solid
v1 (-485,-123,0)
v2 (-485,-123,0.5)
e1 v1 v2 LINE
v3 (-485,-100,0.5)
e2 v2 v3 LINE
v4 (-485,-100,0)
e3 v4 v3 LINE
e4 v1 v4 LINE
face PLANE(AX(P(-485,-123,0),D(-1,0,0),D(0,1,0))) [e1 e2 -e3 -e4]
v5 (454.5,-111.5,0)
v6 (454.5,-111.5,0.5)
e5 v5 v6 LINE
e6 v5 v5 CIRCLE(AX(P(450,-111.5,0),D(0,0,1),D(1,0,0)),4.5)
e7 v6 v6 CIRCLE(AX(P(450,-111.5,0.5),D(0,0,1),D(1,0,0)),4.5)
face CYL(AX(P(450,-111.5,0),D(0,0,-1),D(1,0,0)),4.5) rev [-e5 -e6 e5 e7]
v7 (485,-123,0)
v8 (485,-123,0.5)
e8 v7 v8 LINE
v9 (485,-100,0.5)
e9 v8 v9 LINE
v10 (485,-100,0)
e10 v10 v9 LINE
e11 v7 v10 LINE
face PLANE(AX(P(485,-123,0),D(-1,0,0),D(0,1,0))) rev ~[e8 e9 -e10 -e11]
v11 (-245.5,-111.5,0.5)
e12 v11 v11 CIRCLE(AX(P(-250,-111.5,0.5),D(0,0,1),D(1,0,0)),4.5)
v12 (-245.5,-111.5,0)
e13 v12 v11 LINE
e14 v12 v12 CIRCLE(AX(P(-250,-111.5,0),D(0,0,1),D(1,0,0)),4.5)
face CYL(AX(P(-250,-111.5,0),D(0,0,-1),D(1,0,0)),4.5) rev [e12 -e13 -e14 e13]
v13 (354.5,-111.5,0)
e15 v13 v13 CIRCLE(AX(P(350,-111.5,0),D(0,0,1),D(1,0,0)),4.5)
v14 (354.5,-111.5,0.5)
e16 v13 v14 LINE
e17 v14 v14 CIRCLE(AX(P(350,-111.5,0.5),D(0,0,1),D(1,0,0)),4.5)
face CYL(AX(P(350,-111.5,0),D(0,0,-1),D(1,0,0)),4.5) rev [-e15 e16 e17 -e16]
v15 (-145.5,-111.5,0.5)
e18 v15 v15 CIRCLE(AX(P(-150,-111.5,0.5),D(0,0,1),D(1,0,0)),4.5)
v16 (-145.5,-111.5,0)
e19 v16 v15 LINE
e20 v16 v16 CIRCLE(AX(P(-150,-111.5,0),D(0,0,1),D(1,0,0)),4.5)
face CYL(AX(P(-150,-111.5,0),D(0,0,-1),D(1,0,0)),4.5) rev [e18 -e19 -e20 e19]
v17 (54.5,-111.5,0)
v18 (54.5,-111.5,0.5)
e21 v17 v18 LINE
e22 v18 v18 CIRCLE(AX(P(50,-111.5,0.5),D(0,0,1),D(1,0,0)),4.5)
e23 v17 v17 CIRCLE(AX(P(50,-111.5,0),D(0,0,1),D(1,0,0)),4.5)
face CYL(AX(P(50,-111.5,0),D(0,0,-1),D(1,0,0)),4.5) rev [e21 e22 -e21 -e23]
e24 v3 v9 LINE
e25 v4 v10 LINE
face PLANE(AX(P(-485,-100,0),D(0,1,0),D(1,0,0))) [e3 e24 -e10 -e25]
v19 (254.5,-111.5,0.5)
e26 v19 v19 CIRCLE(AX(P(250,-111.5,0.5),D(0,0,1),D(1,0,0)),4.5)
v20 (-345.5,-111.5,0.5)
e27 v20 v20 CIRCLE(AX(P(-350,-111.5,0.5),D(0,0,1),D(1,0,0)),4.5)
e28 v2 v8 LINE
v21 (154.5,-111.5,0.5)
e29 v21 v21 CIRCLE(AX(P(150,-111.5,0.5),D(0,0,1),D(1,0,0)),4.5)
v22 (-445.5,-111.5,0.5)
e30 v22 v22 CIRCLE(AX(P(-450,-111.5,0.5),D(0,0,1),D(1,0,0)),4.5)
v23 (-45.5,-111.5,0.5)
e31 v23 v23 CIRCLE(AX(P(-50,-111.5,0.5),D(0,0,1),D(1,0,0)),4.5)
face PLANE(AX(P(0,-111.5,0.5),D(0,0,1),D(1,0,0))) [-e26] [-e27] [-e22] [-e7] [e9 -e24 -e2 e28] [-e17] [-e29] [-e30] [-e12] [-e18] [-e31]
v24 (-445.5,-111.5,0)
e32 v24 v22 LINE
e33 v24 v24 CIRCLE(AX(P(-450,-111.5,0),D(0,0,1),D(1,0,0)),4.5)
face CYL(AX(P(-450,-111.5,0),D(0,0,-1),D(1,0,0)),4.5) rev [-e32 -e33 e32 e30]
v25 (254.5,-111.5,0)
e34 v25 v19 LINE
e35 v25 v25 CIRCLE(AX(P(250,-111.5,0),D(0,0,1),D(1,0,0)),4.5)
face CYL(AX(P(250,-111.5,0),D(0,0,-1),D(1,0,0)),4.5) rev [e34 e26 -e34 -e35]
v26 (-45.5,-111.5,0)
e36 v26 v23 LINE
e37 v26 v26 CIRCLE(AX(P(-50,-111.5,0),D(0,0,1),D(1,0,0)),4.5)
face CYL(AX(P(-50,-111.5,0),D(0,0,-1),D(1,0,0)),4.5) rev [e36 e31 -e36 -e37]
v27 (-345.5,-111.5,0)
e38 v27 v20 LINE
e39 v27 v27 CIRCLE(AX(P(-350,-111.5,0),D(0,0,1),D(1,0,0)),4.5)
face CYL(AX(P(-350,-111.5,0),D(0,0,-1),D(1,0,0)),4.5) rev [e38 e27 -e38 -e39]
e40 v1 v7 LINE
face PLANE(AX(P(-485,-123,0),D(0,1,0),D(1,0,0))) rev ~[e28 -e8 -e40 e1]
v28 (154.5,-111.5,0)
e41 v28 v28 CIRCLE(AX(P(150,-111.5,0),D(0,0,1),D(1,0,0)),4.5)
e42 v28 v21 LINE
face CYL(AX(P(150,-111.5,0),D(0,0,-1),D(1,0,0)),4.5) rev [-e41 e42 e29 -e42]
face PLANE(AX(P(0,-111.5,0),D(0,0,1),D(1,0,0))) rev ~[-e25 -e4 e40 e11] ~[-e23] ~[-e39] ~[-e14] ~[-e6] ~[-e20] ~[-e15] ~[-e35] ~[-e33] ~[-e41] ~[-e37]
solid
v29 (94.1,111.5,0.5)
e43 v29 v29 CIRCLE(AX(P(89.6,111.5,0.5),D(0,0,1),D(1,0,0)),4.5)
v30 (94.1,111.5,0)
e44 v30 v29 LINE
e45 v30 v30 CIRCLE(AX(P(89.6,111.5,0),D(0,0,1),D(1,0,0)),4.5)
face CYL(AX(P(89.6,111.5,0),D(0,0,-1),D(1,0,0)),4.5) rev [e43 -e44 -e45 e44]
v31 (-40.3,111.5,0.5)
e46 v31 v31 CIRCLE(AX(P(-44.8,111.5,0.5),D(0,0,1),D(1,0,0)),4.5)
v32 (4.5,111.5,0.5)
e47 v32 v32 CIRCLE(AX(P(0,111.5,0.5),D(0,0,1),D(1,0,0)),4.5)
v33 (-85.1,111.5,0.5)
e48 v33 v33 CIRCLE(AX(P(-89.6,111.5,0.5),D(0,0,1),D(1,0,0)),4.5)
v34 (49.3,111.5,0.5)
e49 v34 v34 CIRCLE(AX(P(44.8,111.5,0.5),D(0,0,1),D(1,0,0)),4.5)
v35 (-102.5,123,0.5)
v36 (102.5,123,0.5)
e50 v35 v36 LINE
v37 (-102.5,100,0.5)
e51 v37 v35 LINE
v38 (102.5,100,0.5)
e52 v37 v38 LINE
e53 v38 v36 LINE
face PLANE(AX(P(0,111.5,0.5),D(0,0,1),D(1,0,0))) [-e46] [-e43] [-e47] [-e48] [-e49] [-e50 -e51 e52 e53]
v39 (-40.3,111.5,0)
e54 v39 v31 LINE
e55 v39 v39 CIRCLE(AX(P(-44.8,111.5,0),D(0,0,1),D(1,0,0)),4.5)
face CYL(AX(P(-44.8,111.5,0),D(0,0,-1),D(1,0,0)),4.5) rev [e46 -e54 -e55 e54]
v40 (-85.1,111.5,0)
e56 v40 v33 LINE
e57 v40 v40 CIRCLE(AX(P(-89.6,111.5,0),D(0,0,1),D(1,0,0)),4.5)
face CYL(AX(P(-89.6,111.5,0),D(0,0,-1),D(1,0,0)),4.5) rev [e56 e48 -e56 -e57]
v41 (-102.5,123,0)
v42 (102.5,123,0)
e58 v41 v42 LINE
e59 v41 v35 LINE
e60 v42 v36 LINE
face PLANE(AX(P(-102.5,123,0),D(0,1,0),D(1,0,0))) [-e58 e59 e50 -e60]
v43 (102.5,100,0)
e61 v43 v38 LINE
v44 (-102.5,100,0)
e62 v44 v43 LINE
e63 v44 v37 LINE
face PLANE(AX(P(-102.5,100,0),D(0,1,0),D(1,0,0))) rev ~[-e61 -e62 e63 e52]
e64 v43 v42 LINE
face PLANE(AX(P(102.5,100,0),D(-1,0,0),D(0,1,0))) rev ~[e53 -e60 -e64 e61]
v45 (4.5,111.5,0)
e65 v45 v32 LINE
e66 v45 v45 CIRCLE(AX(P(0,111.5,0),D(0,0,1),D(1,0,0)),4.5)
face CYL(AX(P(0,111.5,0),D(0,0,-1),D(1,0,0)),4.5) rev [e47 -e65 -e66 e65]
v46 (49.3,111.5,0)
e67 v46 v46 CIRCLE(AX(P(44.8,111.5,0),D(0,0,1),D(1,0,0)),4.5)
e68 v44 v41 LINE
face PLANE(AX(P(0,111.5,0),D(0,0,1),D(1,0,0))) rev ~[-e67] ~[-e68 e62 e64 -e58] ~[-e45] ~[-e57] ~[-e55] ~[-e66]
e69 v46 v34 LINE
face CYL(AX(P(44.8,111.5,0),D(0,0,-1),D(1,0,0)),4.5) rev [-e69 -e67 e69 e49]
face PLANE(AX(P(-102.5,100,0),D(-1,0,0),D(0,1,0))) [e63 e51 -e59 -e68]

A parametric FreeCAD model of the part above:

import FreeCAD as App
import Part
import Sketcher
from FreeCAD import Vector

doc = App.newDocument("Part")
body = doc.addObject("PartDesign::Body", "Body")
body.AllowCompound = True

# Sketch on XY plane
sketch1 = body.newObject("Sketcher::SketchObject", "Sketch")
sketch1.AttachmentSupport = (doc.getObject("XY_Plane"), [""])
sketch1.MapMode = "FlatFace"
sketch1.addGeometry(Part.LineSegment(Vector(-102.5, 123, 0), Vector(-102.5, 100, 0)), False)
sketch1.addGeometry(Part.LineSegment(Vector(-102.5, 100, 0), Vector(102.5, 100, 0)), False)
sketch1.addGeometry(Part.LineSegment(Vector(102.5, 100, 0), Vector(102.5, 123, 0)), False)
sketch1.addGeometry(Part.LineSegment(Vector(102.5, 123, 0), Vector(-102.5, 123, 0)), False)
sketch1.addGeometry(Part.Circle(Vector(-89.6, 111.5, 0), Vector(0, 0, 1), 4.5), False)
sketch1.addGeometry(Part.Circle(Vector(-44.8, 111.5, 0), Vector(0, 0, 1), 4.5), False)
sketch1.addGeometry(Part.Circle(Vector(0, 111.5, 0), Vector(0, 0, 1), 4.5), False)
sketch1.addGeometry(Part.Circle(Vector(44.8, 111.5, 0), Vector(0, 0, 1), 4.5), False)
sketch1.addGeometry(Part.Circle(Vector(89.6, 111.5, 0), Vector(0, 0, 1), 4.5), False)
sketch1.addGeometry(Part.LineSegment(Vector(-485, -100, 0), Vector(-485, -123, 0)), False)
sketch1.addGeometry(Part.LineSegment(Vector(-485, -123, 0), Vector(485, -123, 0)), False)
sketch1.addGeometry(Part.LineSegment(Vector(485, -123, 0), Vector(485, -100, 0)), False)
sketch1.addGeometry(Part.LineSegment(Vector(485, -100, 0), Vector(-485, -100, 0)), False)
sketch1.addGeometry(Part.Circle(Vector(-450, -111.5, 0), Vector(0, 0, 1), 4.5), False)
sketch1.addGeometry(Part.Circle(Vector(-350, -111.5, 0), Vector(0, 0, 1), 4.5), False)
sketch1.addGeometry(Part.Circle(Vector(-250, -111.5, 0), Vector(0, 0, 1), 4.5), False)
sketch1.addGeometry(Part.Circle(Vector(-150, -111.5, 0), Vector(0, 0, 1), 4.5), False)
sketch1.addGeometry(Part.Circle(Vector(-50, -111.5, 0), Vector(0, 0, 1), 4.5), False)
sketch1.addGeometry(Part.Circle(Vector(50, -111.5, 0), Vector(0, 0, 1), 4.5), False)
sketch1.addGeometry(Part.Circle(Vector(150, -111.5, 0), Vector(0, 0, 1), 4.5), False)
sketch1.addGeometry(Part.Circle(Vector(250, -111.5, 0), Vector(0, 0, 1), 4.5), False)
sketch1.addGeometry(Part.Circle(Vector(350, -111.5, 0), Vector(0, 0, 1), 4.5), False)
sketch1.addGeometry(Part.Circle(Vector(450, -111.5, 0), Vector(0, 0, 1), 4.5), False)
sketch1.addConstraint(Sketcher.Constraint("Coincident", 0, 2, 1, 1))
sketch1.addConstraint(Sketcher.Constraint("Coincident", 1, 2, 2, 1))
sketch1.addConstraint(Sketcher.Constraint("Coincident", 2, 2, 3, 1))
sketch1.addConstraint(Sketcher.Constraint("Coincident", 3, 2, 0, 1))
sketch1.addConstraint(Sketcher.Constraint("Coincident", 9, 2, 10, 1))
sketch1.addConstraint(Sketcher.Constraint("Coincident", 10, 2, 11, 1))
sketch1.addConstraint(Sketcher.Constraint("Coincident", 11, 2, 12, 1))
sketch1.addConstraint(Sketcher.Constraint("Coincident", 12, 2, 9, 1))
sketch1.addConstraint(Sketcher.Constraint("Vertical", 0))
sketch1.addConstraint(Sketcher.Constraint("Horizontal", 1))
sketch1.addConstraint(Sketcher.Constraint("Vertical", 2))
sketch1.addConstraint(Sketcher.Constraint("Horizontal", 3))
sketch1.addConstraint(Sketcher.Constraint("Vertical", 9))
sketch1.addConstraint(Sketcher.Constraint("Horizontal", 10))
sketch1.addConstraint(Sketcher.Constraint("Vertical", 11))
sketch1.addConstraint(Sketcher.Constraint("Horizontal", 12))
sketch1.addConstraint(Sketcher.Constraint("Equal", 4, 5))
sketch1.addConstraint(Sketcher.Constraint("Equal", 5, 6))
sketch1.addConstraint(Sketcher.Constraint("Equal", 6, 7))
sketch1.addConstraint(Sketcher.Constraint("Equal", 7, 8))
sketch1.addConstraint(Sketcher.Constraint("Equal", 8, 13))
sketch1.addConstraint(Sketcher.Constraint("Equal", 13, 14))
sketch1.addConstraint(Sketcher.Constraint("Equal", 14, 15))
sketch1.addConstraint(Sketcher.Constraint("Equal", 15, 16))
sketch1.addConstraint(Sketcher.Constraint("Equal", 16, 17))
sketch1.addConstraint(Sketcher.Constraint("Equal", 17, 18))
sketch1.addConstraint(Sketcher.Constraint("Equal", 18, 19))
sketch1.addConstraint(Sketcher.Constraint("Equal", 19, 20))
sketch1.addConstraint(Sketcher.Constraint("Equal", 20, 21))
sketch1.addConstraint(Sketcher.Constraint("Equal", 21, 22))
sketch1.addConstraint(Sketcher.Constraint("Symmetric", 5, 3, 7, 3, -2))
sketch1.addConstraint(Sketcher.Constraint("Symmetric", 4, 3, 8, 3, -2))
sketch1.addConstraint(Sketcher.Constraint("Symmetric", 17, 3, 18, 3, -2))
sketch1.addConstraint(Sketcher.Constraint("Symmetric", 16, 3, 19, 3, -2))
sketch1.addConstraint(Sketcher.Constraint("Symmetric", 15, 3, 20, 3, -2))
sketch1.addConstraint(Sketcher.Constraint("Symmetric", 14, 3, 21, 3, -2))
sketch1.addConstraint(Sketcher.Constraint("Symmetric", 13, 3, 22, 3, -2))
sketch1.addConstraint(Sketcher.Constraint("PointOnObject", 6, 3, -2))
sketch1.addConstraint(Sketcher.Constraint("Horizontal", 4, 3, 5, 3))
sketch1.addConstraint(Sketcher.Constraint("Horizontal", 5, 3, 6, 3))
sketch1.addConstraint(Sketcher.Constraint("Horizontal", 13, 3, 14, 3))
sketch1.addConstraint(Sketcher.Constraint("Horizontal", 14, 3, 15, 3))
sketch1.addConstraint(Sketcher.Constraint("Horizontal", 15, 3, 16, 3))
sketch1.addConstraint(Sketcher.Constraint("Horizontal", 16, 3, 17, 3))
sketch1.addConstraint(Sketcher.Constraint("Equal", 2, 9))
sketch1.addConstraint(Sketcher.Constraint("Diameter", 4, 9.0))
sketch1.addConstraint(Sketcher.Constraint("DistanceX", 1, 1, 1, 2, 205.0))
sketch1.addConstraint(Sketcher.Constraint("DistanceX", 10, 1, 10, 2, 970.0))
sketch1.addConstraint(Sketcher.Constraint("DistanceY", 0, 2, 0, 1, 23.0))
sketch1.addConstraint(Sketcher.Constraint("DistanceX", 13, 3, -1, 1, 450.0))
sketch1.addConstraint(Sketcher.Constraint("DistanceX", 14, 3, -1, 1, 350.0))
sketch1.addConstraint(Sketcher.Constraint("DistanceX", 15, 3, -1, 1, 250.0))
sketch1.addConstraint(Sketcher.Constraint("DistanceX", 16, 3, -1, 1, 150.0))
sketch1.addConstraint(Sketcher.Constraint("DistanceX", 17, 3, -1, 1, 50.0))
sketch1.addConstraint(Sketcher.Constraint("DistanceY", -1, 1, 0, 2, 100.0))
sketch1.addConstraint(Sketcher.Constraint("DistanceX", 9, 2, -1, 1, 485.0))
sketch1.addConstraint(Sketcher.Constraint("DistanceY", 9, 2, -1, 1, 123.0))
sketch1.addConstraint(Sketcher.Constraint("DistanceY", 13, 3, 4, 3, 223.0))
sketch1.addConstraint(Sketcher.Constraint("DistanceX", 4, 3, -1, 1, 89.6))
sketch1.addConstraint(Sketcher.Constraint("DistanceY", -1, 1, 4, 3, 111.5))
sketch1.addConstraint(Sketcher.Constraint("DistanceX", 5, 3, -1, 1, 44.8))
sketch1.addConstraint(Sketcher.Constraint("DistanceX", 0, 2, -1, 1, 102.5))
pad1 = body.newObject("PartDesign::Pad", "Pad")
pad1.Profile = sketch1
pad1.Length = 0.5

doc.recompute()
